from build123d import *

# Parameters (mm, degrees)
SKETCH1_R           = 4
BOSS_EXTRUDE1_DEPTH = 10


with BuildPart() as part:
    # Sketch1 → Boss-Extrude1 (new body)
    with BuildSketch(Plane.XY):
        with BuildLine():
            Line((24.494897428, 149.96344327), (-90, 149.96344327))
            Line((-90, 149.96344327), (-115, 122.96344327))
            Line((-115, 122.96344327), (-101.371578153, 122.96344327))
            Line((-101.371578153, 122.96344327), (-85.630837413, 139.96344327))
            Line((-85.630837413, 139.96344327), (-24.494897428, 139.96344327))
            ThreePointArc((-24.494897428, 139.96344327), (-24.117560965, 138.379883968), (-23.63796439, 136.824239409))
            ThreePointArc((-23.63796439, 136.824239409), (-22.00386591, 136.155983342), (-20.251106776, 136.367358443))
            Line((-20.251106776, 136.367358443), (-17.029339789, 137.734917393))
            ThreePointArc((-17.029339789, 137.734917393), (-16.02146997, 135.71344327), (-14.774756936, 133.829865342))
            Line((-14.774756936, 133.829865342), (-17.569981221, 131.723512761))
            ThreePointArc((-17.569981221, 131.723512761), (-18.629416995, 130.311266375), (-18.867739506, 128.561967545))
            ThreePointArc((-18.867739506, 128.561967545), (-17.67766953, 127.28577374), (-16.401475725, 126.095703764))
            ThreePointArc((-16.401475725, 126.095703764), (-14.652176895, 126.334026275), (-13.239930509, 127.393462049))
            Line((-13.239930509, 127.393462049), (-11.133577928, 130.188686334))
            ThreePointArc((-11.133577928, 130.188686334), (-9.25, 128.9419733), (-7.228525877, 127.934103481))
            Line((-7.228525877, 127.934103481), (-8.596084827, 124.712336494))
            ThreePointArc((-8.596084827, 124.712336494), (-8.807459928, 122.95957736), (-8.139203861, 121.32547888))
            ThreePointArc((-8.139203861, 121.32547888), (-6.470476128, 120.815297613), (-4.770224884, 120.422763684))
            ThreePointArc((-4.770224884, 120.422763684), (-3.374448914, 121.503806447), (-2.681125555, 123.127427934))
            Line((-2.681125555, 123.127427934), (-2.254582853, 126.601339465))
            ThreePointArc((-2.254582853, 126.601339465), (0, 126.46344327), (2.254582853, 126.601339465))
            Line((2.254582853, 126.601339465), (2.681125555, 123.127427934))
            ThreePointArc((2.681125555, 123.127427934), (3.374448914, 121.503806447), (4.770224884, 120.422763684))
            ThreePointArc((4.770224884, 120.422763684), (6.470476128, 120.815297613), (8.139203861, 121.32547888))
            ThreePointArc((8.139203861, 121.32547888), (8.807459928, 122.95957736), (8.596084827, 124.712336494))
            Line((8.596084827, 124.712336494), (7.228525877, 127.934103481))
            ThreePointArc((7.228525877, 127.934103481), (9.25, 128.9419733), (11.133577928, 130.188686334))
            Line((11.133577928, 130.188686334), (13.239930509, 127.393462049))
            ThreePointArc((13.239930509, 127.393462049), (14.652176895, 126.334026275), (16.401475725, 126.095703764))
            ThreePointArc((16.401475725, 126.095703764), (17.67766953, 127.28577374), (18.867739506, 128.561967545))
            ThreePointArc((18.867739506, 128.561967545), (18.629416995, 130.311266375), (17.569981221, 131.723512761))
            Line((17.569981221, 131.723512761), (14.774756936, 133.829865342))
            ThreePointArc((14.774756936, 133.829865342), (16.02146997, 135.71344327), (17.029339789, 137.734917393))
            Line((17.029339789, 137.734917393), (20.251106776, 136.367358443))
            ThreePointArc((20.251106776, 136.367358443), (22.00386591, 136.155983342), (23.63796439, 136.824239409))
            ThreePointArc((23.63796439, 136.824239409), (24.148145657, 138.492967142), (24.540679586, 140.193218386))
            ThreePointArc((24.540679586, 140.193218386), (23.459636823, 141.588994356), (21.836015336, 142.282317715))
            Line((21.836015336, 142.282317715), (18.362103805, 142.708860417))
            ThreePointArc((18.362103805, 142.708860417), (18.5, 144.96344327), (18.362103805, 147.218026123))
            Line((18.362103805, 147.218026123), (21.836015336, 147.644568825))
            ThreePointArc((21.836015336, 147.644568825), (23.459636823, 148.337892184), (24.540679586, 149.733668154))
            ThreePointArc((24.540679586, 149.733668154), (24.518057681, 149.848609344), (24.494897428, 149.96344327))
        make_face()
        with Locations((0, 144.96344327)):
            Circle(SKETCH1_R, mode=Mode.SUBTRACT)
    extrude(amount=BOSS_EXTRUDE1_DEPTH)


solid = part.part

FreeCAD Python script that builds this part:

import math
import FreeCAD as App
import Part
import Sketcher
from FreeCAD import Vector
Q = App.Units.Quantity

doc = App.newDocument("Part")
params = doc.addObject("Spreadsheet::Sheet", "Params")
for row, (alias, value) in enumerate([
    ("sketch1_diameter", "8 mm"),
    ("sketch1_radius", "25 mm"),
    ("sketch1_radius2", "18.5 mm"),
    ("sketch1_length", "3.5 mm"),
    ("pad1_length", "10 mm"),
], start=1):
    params.set(f"A{row}", alias)
    params.set(f"B{row}", "=" + value)
    params.setAlias(f"B{row}", alias)

body = doc.addObject("PartDesign::Body", "Body")

# Sketch on XY plane
sketch1 = body.newObject("Sketcher::SketchObject", "Sketch")
sketch1.AttachmentSupport = (doc.getObject("XY_Plane"), [""])
sketch1.MapMode = "FlatFace"
sketch1.addGeometry(Part.LineSegment(Vector(24.49, 149.96, 0), Vector(-90, 149.96, 0)), False)
sketch1.addGeometry(Part.LineSegment(Vector(-90, 149.96, 0), Vector(-115, 122.96, 0)), False)
sketch1.addGeometry(Part.LineSegment(Vector(-115, 122.96, 0), Vector(-101.37, 122.96, 0)), False)
sketch1.addGeometry(Part.LineSegment(Vector(-101.37, 122.96, 0), Vector(-85.63, 139.96, 0)), False)
sketch1.addGeometry(Part.LineSegment(Vector(-85.63, 139.96, 0), Vector(-24.49, 139.96, 0)), False)
sketch1.addGeometry(Part.ArcOfCircle(Part.Circle(Vector(0, 144.96, 0), Vector(0, 0, 1), 25), math.radians(-168.46), math.radians(-161)), False)
sketch1.addGeometry(Part.ArcOfCircle(Part.Circle(Vector(-21.53, 139.64, 0), Vector(0, 0, 1), 3.51), math.radians(-127), math.radians(-69)), False)
sketch1.addGeometry(Part.LineSegment(Vector(-20.25, 136.37, 0), Vector(-17.03, 137.73, 0)), False)
sketch1.addGeometry(Part.ArcOfCircle(Part.Circle(Vector(0, 144.96, 0), Vector(0, 0, 1), 18.5), math.radians(-157), math.radians(-143)), False)
sketch1.addGeometry(Part.LineSegment(Vector(-14.77, 133.83, 0), Vector(-17.57, 131.72, 0)), False)
sketch1.addGeometry(Part.ArcOfCircle(Part.Circle(Vector(-15.38, 128.98, 0), Vector(0, 0, 1), 3.51), math.radians(129), math.radians(187)), False)
sketch1.addGeometry(Part.ArcOfCircle(Part.Circle(Vector(0, 144.96, 0), Vector(0, 0, 1), 25), math.radians(-139), math.radians(-131)), False)
sketch1.addGeometry(Part.ArcOfCircle(Part.Circle(Vector(-15.99, 129.58, 0), Vector(0, 0, 1), 3.51), math.radians(-97), math.radians(-39)), False)
sketch1.addGeometry(Part.LineSegment(Vector(-13.24, 127.39, 0), Vector(-11.13, 130.19, 0)), False)
sketch1.addGeometry(Part.ArcOfCircle(Part.Circle(Vector(0, 144.96, 0), Vector(0, 0, 1), 18.5), math.radians(-127), math.radians(-113)), False)
sketch1.addGeometry(Part.LineSegment(Vector(-7.23, 127.93, 0), Vector(-8.6, 124.71, 0)), False)
sketch1.addGeometry(Part.ArcOfCircle(Part.Circle(Vector(-5.33, 123.43, 0), Vector(0, 0, 1), 3.51), math.radians(159), math.radians(217)), False)
sketch1.addGeometry(Part.ArcOfCircle(Part.Circle(Vector(0, 144.96, 0), Vector(0, 0, 1), 25), math.radians(-109), math.radians(-101)), False)
sketch1.addGeometry(Part.ArcOfCircle(Part.Circle(Vector(-6.15, 123.65, 0), Vector(0, 0, 1), 3.51), math.radians(-67), math.radians(-9)), False)
sketch1.addGeometry(Part.LineSegment(Vector(-2.68, 123.13, 0), Vector(-2.25, 126.6, 0)), False)
sketch1.addGeometry(Part.ArcOfCircle(Part.Circle(Vector(0, 144.96, 0), Vector(0, 0, 1), 18.5), math.radians(-97), math.radians(-83)), False)
sketch1.addGeometry(Part.LineSegment(Vector(2.25, 126.6, 0), Vector(2.68, 123.13, 0)), False)
sketch1.addGeometry(Part.ArcOfCircle(Part.Circle(Vector(6.15, 123.65, 0), Vector(0, 0, 1), 3.51), math.radians(-171), math.radians(-113)), False)
sketch1.addGeometry(Part.ArcOfCircle(Part.Circle(Vector(0, 144.96, 0), Vector(0, 0, 1), 25), math.radians(-79), math.radians(-71)), False)
sketch1.addGeometry(Part.ArcOfCircle(Part.Circle(Vector(5.33, 123.43, 0), Vector(0, 0, 1), 3.51), math.radians(-37), math.radians(21)), False)
sketch1.addGeometry(Part.LineSegment(Vector(8.6, 124.71, 0), Vector(7.23, 127.93, 0)), False)
sketch1.addGeometry(Part.ArcOfCircle(Part.Circle(Vector(0, 144.96, 0), Vector(0, 0, 1), 18.5), math.radians(-67), math.radians(-53)), False)
sketch1.addGeometry(Part.LineSegment(Vector(11.13, 130.19, 0), Vector(13.24, 127.39, 0)), False)
sketch1.addGeometry(Part.ArcOfCircle(Part.Circle(Vector(15.99, 129.58, 0), Vector(0, 0, 1), 3.51), math.radians(-141), math.radians(-83)), False)
sketch1.addGeometry(Part.ArcOfCircle(Part.Circle(Vector(0, 144.96, 0), Vector(0, 0, 1), 25), math.radians(-49), math.radians(-41)), False)
sketch1.addGeometry(Part.ArcOfCircle(Part.Circle(Vector(15.38, 128.98, 0), Vector(0, 0, 1), 3.51), math.radians(-7), math.radians(51)), False)
sketch1.addGeometry(Part.LineSegment(Vector(17.57, 131.72, 0), Vector(14.77, 133.83, 0)), False)
sketch1.addGeometry(Part.ArcOfCircle(Part.Circle(Vector(0, 144.96, 0), Vector(0, 0, 1), 18.5), math.radians(-37), math.radians(-23)), False)
sketch1.addGeometry(Part.LineSegment(Vector(17.03, 137.73, 0), Vector(20.25, 136.37, 0)), False)
sketch1.addGeometry(Part.ArcOfCircle(Part.Circle(Vector(21.53, 139.64, 0), Vector(0, 0, 1), 3.51), math.radians(-111), math.radians(-53)), False)
sketch1.addGeometry(Part.ArcOfCircle(Part.Circle(Vector(0, 144.96, 0), Vector(0, 0, 1), 25), math.radians(-19), math.radians(-11)), False)
sketch1.addGeometry(Part.ArcOfCircle(Part.Circle(Vector(21.31, 138.81, 0), Vector(0, 0, 1), 3.51), math.radians(23), math.radians(81)), False)
sketch1.addGeometry(Part.LineSegment(Vector(21.84, 142.28, 0), Vector(18.36, 142.71, 0)), False)
sketch1.addGeometry(Part.ArcOfCircle(Part.Circle(Vector(0, 144.96, 0), Vector(0, 0, 1), 18.5), math.radians(-7), math.radians(7)), False)
sketch1.addGeometry(Part.LineSegment(Vector(18.36, 147.22, 0), Vector(21.84, 147.64, 0)), False)
sketch1.addGeometry(Part.ArcOfCircle(Part.Circle(Vector(21.31, 151.12, 0), Vector(0, 0, 1), 3.51), math.radians(-81), math.radians(-23)), False)
sketch1.addGeometry(Part.ArcOfCircle(Part.Circle(Vector(0, 144.96, 0), Vector(0, 0, 1), 25), math.radians(11), math.radians(11.54)), False)
sketch1.addGeometry(Part.Circle(Vector(0, 144.96, 0), Vector(0, 0, 1), 4), False)
sketch1.addConstraint(Sketcher.Constraint("Coincident", 0, 2, 1, 1))
sketch1.addConstraint(Sketcher.Constraint("Coincident", 1, 2, 2, 1))
sketch1.addConstraint(Sketcher.Constraint("Coincident", 2, 2, 3, 1))
sketch1.addConstraint(Sketcher.Constraint("Coincident", 3, 2, 4, 1))
sketch1.addConstraint(Sketcher.Constraint("Coincident", 4, 2, 5, 1))
sketch1.addConstraint(Sketcher.Constraint("Coincident", 5, 2, 6, 1))
sketch1.addConstraint(Sketcher.Constraint("Coincident", 6, 2, 7, 1))
sketch1.addConstraint(Sketcher.Constraint("Coincident", 7, 2, 8, 1))
sketch1.addConstraint(Sketcher.Constraint("Coincident", 8, 2, 9, 1))
sketch1.addConstraint(Sketcher.Constraint("Coincident", 9, 2, 10, 1))
sketch1.addConstraint(Sketcher.Constraint("Coincident", 10, 2, 11, 1))
sketch1.addConstraint(Sketcher.Constraint("Coincident", 11, 2, 12, 1))
sketch1.addConstraint(Sketcher.Constraint("Coincident", 12, 2, 13, 1))
sketch1.addConstraint(Sketcher.Constraint("Coincident", 13, 2, 14, 1))
sketch1.addConstraint(Sketcher.Constraint("Coincident", 14, 2, 15, 1))
sketch1.addConstraint(Sketcher.Constraint("Coincident", 15, 2, 16, 1))
sketch1.addConstraint(Sketcher.Constraint("Coincident", 16, 2, 17, 1))
sketch1.addConstraint(Sketcher.Constraint("Coincident", 17, 2, 18, 1))
sketch1.addConstraint(Sketcher.Constraint("Coincident", 18, 2, 19, 1))
sketch1.addConstraint(Sketcher.Constraint("Coincident", 19, 2, 20, 1))
sketch1.addConstraint(Sketcher.Constraint("Coincident", 20, 2, 21, 1))
sketch1.addConstraint(Sketcher.Constraint("Coincident", 21, 2, 22, 1))
sketch1.addConstraint(Sketcher.Constraint("Coincident", 22, 2, 23, 1))
sketch1.addConstraint(Sketcher.Constraint("Coincident", 23, 2, 24, 1))
sketch1.addConstraint(Sketcher.Constraint("Coincident", 24, 2, 25, 1))
sketch1.addConstraint(Sketcher.Constraint("Coincident", 25, 2, 26, 1))
sketch1.addConstraint(Sketcher.Constraint("Coincident", 26, 2, 27, 1))
sketch1.addConstraint(Sketcher.Constraint("Coincident", 27, 2, 28, 1))
sketch1.addConstraint(Sketcher.Constraint("Coincident", 28, 2, 29, 1))
sketch1.addConstraint(Sketcher.Constraint("Coincident", 29, 2, 30, 1))
sketch1.addConstraint(Sketcher.Constraint("Coincident", 30, 2, 31, 1))
sketch1.addConstraint(Sketcher.Constraint("Coincident", 31, 2, 32, 1))
sketch1.addConstraint(Sketcher.Constraint("Coincident", 32, 2, 33, 1))
sketch1.addConstraint(Sketcher.Constraint("Coincident", 33, 2, 34, 1))
sketch1.addConstraint(Sketcher.Constraint("Coincident", 34, 2, 35, 1))
sketch1.addConstraint(Sketcher.Constraint("Coincident", 35, 2, 36, 1))
sketch1.addConstraint(Sketcher.Constraint("Coincident", 36, 2, 37, 1))
sketch1.addConstraint(Sketcher.Constraint("Coincident", 37, 2, 38, 1))
sketch1.addConstraint(Sketcher.Constraint("Coincident", 38, 2, 39, 1))
sketch1.addConstraint(Sketcher.Constraint("Coincident", 39, 2, 40, 1))
sketch1.addConstraint(Sketcher.Constraint("Coincident", 40, 2, 41, 1))
sketch1.addConstraint(Sketcher.Constraint("Coincident", 41, 2, 0, 1))
sketch1.addConstraint(Sketcher.Constraint("Horizontal", 0))
sketch1.addConstraint(Sketcher.Constraint("Horizontal", 2))
sketch1.addConstraint(Sketcher.Constraint("Horizontal", 4))
sketch1.addConstraint(Sketcher.Constraint("Coincident", 8, 3, 5, 3))
sketch1.addConstraint(Sketcher.Constraint("Coincident", 11, 3, 5, 3))
sketch1.addConstraint(Sketcher.Constraint("Coincident", 14, 3, 5, 3))
sketch1.addConstraint(Sketcher.Constraint("Coincident", 17, 3, 5, 3))
sketch1.addConstraint(Sketcher.Constraint("Coincident", 20, 3, 5, 3))
sketch1.addConstraint(Sketcher.Constraint("Coincident", 23, 3, 5, 3))
sketch1.addConstraint(Sketcher.Constraint("Coincident", 26, 3, 5, 3))
sketch1.addConstraint(Sketcher.Constraint("Coincident", 29, 3, 5, 3))
sketch1.addConstraint(Sketcher.Constraint("Coincident", 32, 3, 5, 3))
sketch1.addConstraint(Sketcher.Constraint("Coincident", 35, 3, 5, 3))
sketch1.addConstraint(Sketcher.Constraint("Coincident", 38, 3, 5, 3))
sketch1.addConstraint(Sketcher.Constraint("Coincident", 42, 3, 5, 3))
sketch1.addConstraint(Sketcher.Constraint("Equal", 6, 10))
sketch1.addConstraint(Sketcher.Constraint("Equal", 5, 11))
sketch1.addConstraint(Sketcher.Constraint("Equal", 10, 12))
sketch1.addConstraint(Sketcher.Constraint("Equal", 8, 14))
sketch1.addConstraint(Sketcher.Constraint("Equal", 12, 16))
sketch1.addConstraint(Sketcher.Constraint("Equal", 11, 17))
sketch1.addConstraint(Sketcher.Constraint("Equal", 16, 18))
sketch1.addConstraint(Sketcher.Constraint("Equal", 14, 20))
sketch1.addConstraint(Sketcher.Constraint("Equal", 18, 22))
sketch1.addConstraint(Sketcher.Constraint("Equal", 17, 23))
sketch1.addConstraint(Sketcher.Constraint("Equal", 22, 24))
sketch1.addConstraint(Sketcher.Constraint("Equal", 20, 26))
sketch1.addConstraint(Sketcher.Constraint("Equal", 24, 28))
sketch1.addConstraint(Sketcher.Constraint("Equal", 23, 29))
sketch1.addConstraint(Sketcher.Constraint("Equal", 28, 30))
sketch1.addConstraint(Sketcher.Constraint("Equal", 26, 32))
sketch1.addConstraint(Sketcher.Constraint("Equal", 30, 34))
sketch1.addConstraint(Sketcher.Constraint("Equal", 29, 35))
sketch1.addConstraint(Sketcher.Constraint("Equal", 34, 36))
sketch1.addConstraint(Sketcher.Constraint("Equal", 32, 38))
sketch1.addConstraint(Sketcher.Constraint("Equal", 36, 40))
sketch1.addConstraint(Sketcher.Constraint("Symmetric", 18, 3, 22, 3, -2))
sketch1.addConstraint(Sketcher.Constraint("Symmetric", 16, 3, 24, 3, -2))
sketch1.addConstraint(Sketcher.Constraint("Symmetric", 12, 3, 28, 3, -2))
sketch1.addConstraint(Sketcher.Constraint("Symmetric", 10, 3, 30, 3, -2))
sketch1.addConstraint(Sketcher.Constraint("Symmetric", 6, 3, 34, 3, -2))
sketch1.addConstraint(Sketcher.Constraint("Symmetric", 19, 2, 20, 2, -2))
sketch1.addConstraint(Sketcher.Constraint("Parallel", 1, 3))
sketch1.addConstraint(Sketcher.Constraint("Perpendicular", 7, 25))
sketch1.addConstraint(Sketcher.Constraint("Perpendicular", 9, 27))
sketch1.addConstraint(Sketcher.Constraint("Perpendicular", 13, 31))
sketch1.addConstraint(Sketcher.Constraint("Perpendicular", 15, 33))
sketch1.addConstraint(Sketcher.Constraint("Perpendicular", 19, 37))
sketch1.addConstraint(Sketcher.Constraint("Perpendicular", 21, 39))
sketch1.addConstraint(Sketcher.Constraint("Horizontal", 18, 2, 21, 2))
sketch1.addConstraint(Sketcher.Constraint("Horizontal", 15, 2, 24, 2))
sketch1.addConstraint(Sketcher.Constraint("Horizontal", 14, 2, 25, 2))
sketch1.addConstraint(Sketcher.Constraint("Horizontal", 13, 2, 26, 2))
sketch1.addConstraint(Sketcher.Constraint("Horizontal", 12, 2, 27, 2))
sketch1.addConstraint(Sketcher.Constraint("Horizontal", 9, 2, 30, 2))
sketch1.addConstraint(Sketcher.Constraint("Horizontal", 6, 2, 33, 2))
sketch1.addConstraint(Sketcher.Constraint("Vertical", 36, 3, 40, 3))
sketch1.addConstraint(Sketcher.Constraint("Vertical", 37, 2, 38, 2))
sketch1.addConstraint(Sketcher.Constraint("Vertical", 36, 2, 39, 2))
sketch1.addConstraint(Sketcher.Constraint("Vertical", 35, 2, 40, 2))
sketch1.addConstraint(Sketcher.Constraint("Equal", 7, 9))
sketch1.addConstraint(Sketcher.Constraint("Equal", 9, 13))
sketch1.addConstraint(Sketcher.Constraint("Equal", 13, 15))
sketch1.addConstraint(Sketcher.Constraint("Equal", 15, 19))
sketch1.addConstraint(Sketcher.Constraint("Equal", 33, 37))
sketch1.addConstraint(Sketcher.Constraint("Diameter", 42, 8.0))
sketch1.addConstraint(Sketcher.Constraint("Radius", 5, 25.0))
sketch1.addConstraint(Sketcher.Constraint("Radius", 8, 18.5))
sketch1.addConstraint(Sketcher.Constraint("Angle", 7, Q("23 deg")))
sketch1.addConstraint(Sketcher.Constraint("Angle", 9, Q("-143 deg")))
sketch1.addConstraint(Sketcher.Constraint("Angle", 19, Q("83 deg")))
sketch1.addConstraint(Sketcher.Constraint("DistanceX", 0, 2, -1, 1, 90.0))
sketch1.addConstraint(Sketcher.Constraint("DistanceX", 1, 2, -1, 1, 115.0))
sketch1.addConstraint(Sketcher.Constraint("Distance", 7, 3.5))
sketch1.addConstraint(Sketcher.Constraint("Radius", 41, 24.99996))
sketch1.addConstraint(Sketcher.Constraint("Radius", 6, 3.511547))
sketch1.addConstraint(Sketcher.Constraint("DistanceX", 2, 1, 2, 2, 13.628422))
sketch1.addConstraint(Sketcher.Constraint("DistanceX", 4, 1, 4, 2, 61.13594))
sketch1.addConstraint(Sketcher.Constraint("DistanceX", 10, 3, -1, 1, 15.380902))
sketch1.addConstraint(Sketcher.Constraint("Distance", 1, 36.796739))
sketch1.addConstraint(Sketcher.Constraint("DistanceX", 0, 2, 0, 1, 114.494897))
sketch1.addConstraint(Sketcher.Constraint("DistanceY", -1, 1, 6, 3, 139.636009))
sketch1.addConstraint(Sketcher.Constraint("DistanceY", -1, 1, 10, 3, 128.977809))
sketch1.addConstraint(Sketcher.Constraint("DistanceY", -1, 1, 12, 3, 129.582541))
sketch1.addConstraint(Sketcher.Constraint("DistanceX", -1, 1, 36, 3, 21.313069))
sketch1.addConstraint(Sketcher.Constraint("DistanceY", -1, 1, 36, 3, 138.809928))
sketch1.addConstraint(Sketcher.Constraint("DistanceY", -1, 1, 40, 3, 151.116958))
sketch1.addConstraint(Sketcher.Constraint("DistanceY", -1, 1, 41, 3, 144.963451))
sketch1.addConstraint(Sketcher.Constraint("DistanceY", -1, 1, 5, 2, 136.824239))
sketch1.addConstraint(Sketcher.Constraint("DistanceX", 12, 2, -1, 1, 13.239931))
sketch1.addConstraint(Sketcher.Constraint("DistanceY", -1, 1, 16, 2, 121.325479))
sketch1.addConstraint(Sketcher.Constraint("DistanceY", -1, 1, 19, 2, 126.601339))
sketch1.addConstraint(Sketcher.Constraint("DistanceX", 16, 3, -1, 1, 5.327434))
sketch1.addConstraint(Sketcher.Constraint("DistanceX", 18, 3, -1, 1, 6.153515))
sketch1.setExpression("Constraints[107]", "Params.sketch1_diameter")
sketch1.setExpression("Constraints[108]", "Params.sketch1_radius")
sketch1.setExpression("Constraints[109]", "Params.sketch1_radius2")
sketch1.setExpression("Constraints[115]", "Params.sketch1_length")
pad1 = body.newObject("PartDesign::Pad", "Pad")
pad1.Profile = sketch1
pad1.setExpression("Length", "Params.pad1_length")

doc.recompute()
